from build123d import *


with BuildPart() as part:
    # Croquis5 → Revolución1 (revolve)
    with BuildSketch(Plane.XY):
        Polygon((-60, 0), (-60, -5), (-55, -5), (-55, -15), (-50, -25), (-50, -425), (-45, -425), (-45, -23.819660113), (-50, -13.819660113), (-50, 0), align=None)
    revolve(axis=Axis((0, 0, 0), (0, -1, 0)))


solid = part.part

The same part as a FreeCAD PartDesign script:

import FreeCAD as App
import Part
import Sketcher
from FreeCAD import Vector
Q = App.Units.Quantity


def add_polygon(sketch, points):
    """Adds a closed chain of lines whose ends are joined by coincident constraints."""
    first, n = sketch.GeometryCount, len(points)
    for a, b in zip(points, points[1:] + points[:1]):
        sketch.addGeometry(Part.LineSegment(App.Vector(*a, 0), App.Vector(*b, 0)), False)
    for i in range(n):
        sketch.addConstraint(Sketcher.Constraint("Coincident", first + i, 2, first + (i + 1) % n, 1))

doc = App.newDocument("Part")
body = doc.addObject("PartDesign::Body", "Body")

# Sketch on XY plane
sketch1 = doc.addObject("Sketcher::SketchObject", "Sketch")
body.addObject(sketch1)
sketch1.AttachmentSupport = (doc.XY_Plane, [""])
sketch1.MapMode = "FlatFace"
add_polygon(sketch1, [(-60, 0), (-60, -5), (-55, -5), (-55, -15), (-50, -25), (-50, -425), (-45, -425), (-45, -24), (-50, -14), (-50, 0)])  # lines 0-9
sketch1.addConstraint([
    Sketcher.Constraint("Vertical", 0),
    Sketcher.Constraint("Horizontal", 1),
    Sketcher.Constraint("Vertical", 2),
    Sketcher.Constraint("Vertical", 4),
    Sketcher.Constraint("Horizontal", 5),
    Sketcher.Constraint("Vertical", 6),
    Sketcher.Constraint("Vertical", 8),
    Sketcher.Constraint("Horizontal", 9),
    Sketcher.Constraint("PointOnObject", 8, 2, -1),
    Sketcher.Constraint("Parallel", 3, 7),
    Sketcher.Constraint("Vertical", 4, 2, 7, 2),
    Sketcher.Constraint("Equal", 1, 5),
    Sketcher.Constraint("Equal", 5, 0),
    Sketcher.Constraint("Equal", 9, 2),
    Sketcher.Constraint("Equal", 3, 7),
    Sketcher.Constraint("DistanceX", 1, 1, 1, 2, Q("5 mm")),
    Sketcher.Constraint("DistanceY", 4, 2, 4, 1, Q("400 mm")),
    Sketcher.Constraint("DistanceX", 0, 2, -1, 1, Q("60 mm")),
    Sketcher.Constraint("DistanceY", 3, 2, -1, 1, Q("25 mm")),
    Sketcher.Constraint("DistanceY", 6, 1, 6, 2, Q("401.18034 mm")),
])
revolution = doc.addObject("PartDesign::Revolution", "Revolution")
body.addObject(revolution)
revolution.Profile = sketch1
revolution.ReferenceAxis = (sketch1, ["V_Axis"])
revolution.Angle = 360

doc.recompute()
